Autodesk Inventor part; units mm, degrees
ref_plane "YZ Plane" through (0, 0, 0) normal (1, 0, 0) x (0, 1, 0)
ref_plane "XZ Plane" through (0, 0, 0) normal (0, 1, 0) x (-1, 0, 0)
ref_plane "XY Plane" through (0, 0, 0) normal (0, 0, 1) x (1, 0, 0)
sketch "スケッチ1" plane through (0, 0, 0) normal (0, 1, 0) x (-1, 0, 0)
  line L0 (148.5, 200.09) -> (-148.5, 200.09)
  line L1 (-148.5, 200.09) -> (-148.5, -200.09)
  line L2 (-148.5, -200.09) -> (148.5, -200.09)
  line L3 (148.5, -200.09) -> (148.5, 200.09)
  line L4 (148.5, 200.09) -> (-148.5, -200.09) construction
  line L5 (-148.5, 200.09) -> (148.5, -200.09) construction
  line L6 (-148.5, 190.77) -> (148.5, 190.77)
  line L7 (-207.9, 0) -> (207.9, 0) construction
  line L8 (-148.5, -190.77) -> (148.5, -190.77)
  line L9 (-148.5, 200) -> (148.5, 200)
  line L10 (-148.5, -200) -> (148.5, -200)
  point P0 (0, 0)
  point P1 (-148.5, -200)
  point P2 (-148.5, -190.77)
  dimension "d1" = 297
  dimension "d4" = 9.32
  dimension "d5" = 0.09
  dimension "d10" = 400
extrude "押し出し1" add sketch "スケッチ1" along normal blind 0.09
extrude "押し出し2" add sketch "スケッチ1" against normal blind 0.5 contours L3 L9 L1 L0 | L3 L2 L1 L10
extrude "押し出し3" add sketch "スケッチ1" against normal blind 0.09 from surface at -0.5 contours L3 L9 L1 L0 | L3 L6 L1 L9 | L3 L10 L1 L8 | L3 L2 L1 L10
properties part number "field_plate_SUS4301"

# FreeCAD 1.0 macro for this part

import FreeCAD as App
import Part
import Sketcher
Q = App.Units.Quantity

doc = App.newDocument("Part")
params = doc.addObject("Spreadsheet::Sheet", "Params")
for row, (alias, value) in enumerate([
    ("sketch1_width", "297 mm"),
    ("sketch1_height", "400.18 mm"),
    ("pad1_length", "0.09 mm"),
    ("sketch2_width", "297 mm"),
    ("sketch2_height", "0.09 mm"),
    ("pad2_length", "0.5 mm"),
    ("sketch3_width", "297 mm"),
    ("sketch3_height", "9.32 mm"),
    ("pad3_length", "0.09 mm"),
], start=1):
    params.set(f"A{row}", alias)
    params.set(f"B{row}", "=" + value)
    params.setAlias(f"B{row}", alias)

body = doc.addObject("PartDesign::Body", "Body")

# Sketch on XZ plane
sketch1 = body.newObject("Sketcher::SketchObject", "Sketch")
sketch1.AttachmentSupport = (doc.getObject("XZ_Plane"), [""])
sketch1.MapMode = "FlatFace"
sketch1.addGeometry(Part.LineSegment(App.Vector(-148, 200, 0), App.Vector(148, 200, 0)), False)
sketch1.addGeometry(Part.LineSegment(App.Vector(148, 200, 0), App.Vector(148, -200, 0)), False)
sketch1.addGeometry(Part.LineSegment(App.Vector(148, -200, 0), App.Vector(-148, -200, 0)), False)
sketch1.addGeometry(Part.LineSegment(App.Vector(-148, -200, 0), App.Vector(-148, 200, 0)), False)
sketch1.addConstraint(Sketcher.Constraint("Coincident", 0, 2, 1, 1))
sketch1.addConstraint(Sketcher.Constraint("Coincident", 1, 2, 2, 1))
sketch1.addConstraint(Sketcher.Constraint("Coincident", 2, 2, 3, 1))
sketch1.addConstraint(Sketcher.Constraint("Coincident", 3, 2, 0, 1))
sketch1.addConstraint(Sketcher.Constraint("Horizontal", 0))
sketch1.addConstraint(Sketcher.Constraint("Vertical", 1))
sketch1.addConstraint(Sketcher.Constraint("Horizontal", 2))
sketch1.addConstraint(Sketcher.Constraint("Vertical", 3))
sketch1.addConstraint(Sketcher.Constraint("Symmetric", 0, 2, 2, 2, -1, 1))
sketch1.addConstraint(Sketcher.Constraint("DistanceX", 0, 1, 0, 2, Q("297 mm")))
sketch1.addConstraint(Sketcher.Constraint("DistanceY", 1, 2, 1, 1, Q("400.18 mm")))
sketch1.setExpression("Constraints[9]", "Params.sketch1_width")
sketch1.setExpression("Constraints[10]", "Params.sketch1_height")
pad1 = body.newObject("PartDesign::Pad", "Pad")
pad1.Profile = sketch1
pad1.setExpression("Length", "Params.pad1_length")
pad1.Reversed = True

# Sketch on XZ plane
sketch2 = body.newObject("Sketcher::SketchObject", "Sketch001")
sketch2.AttachmentSupport = (doc.getObject("XZ_Plane"), [""])
sketch2.MapMode = "FlatFace"
sketch2.addGeometry(Part.LineSegment(App.Vector(-148.5, 200, 0), App.Vector(-148.5, 200.09, 0)), False)
sketch2.addGeometry(Part.LineSegment(App.Vector(-148.5, 200.09, 0), App.Vector(148.5, 200.09, 0)), False)
sketch2.addGeometry(Part.LineSegment(App.Vector(148.5, 200.09, 0), App.Vector(148.5, 200, 0)), False)
sketch2.addGeometry(Part.LineSegment(App.Vector(148.5, 200, 0), App.Vector(-148.5, 200, 0)), False)
sketch2.addGeometry(Part.LineSegment(App.Vector(-148.5, -200.09, 0), App.Vector(-148.5, -200, 0)), False)
sketch2.addGeometry(Part.LineSegment(App.Vector(-148.5, -200, 0), App.Vector(148.5, -200, 0)), False)
sketch2.addGeometry(Part.LineSegment(App.Vector(148.5, -200, 0), App.Vector(148.5, -200.09, 0)), False)
sketch2.addGeometry(Part.LineSegment(App.Vector(148.5, -200.09, 0), App.Vector(-148.5, -200.09, 0)), False)
sketch2.addConstraint(Sketcher.Constraint("Coincident", 0, 2, 1, 1))
sketch2.addConstraint(Sketcher.Constraint("Coincident", 1, 2, 2, 1))
sketch2.addConstraint(Sketcher.Constraint("Coincident", 2, 2, 3, 1))
sketch2.addConstraint(Sketcher.Constraint("Coincident", 3, 2, 0, 1))
sketch2.addConstraint(Sketcher.Constraint("Coincident", 4, 2, 5, 1))
sketch2.addConstraint(Sketcher.Constraint("Coincident", 5, 2, 6, 1))
sketch2.addConstraint(Sketcher.Constraint("Coincident", 6, 2, 7, 1))
sketch2.addConstraint(Sketcher.Constraint("Coincident", 7, 2, 4, 1))
sketch2.addConstraint(Sketcher.Constraint("Vertical", 0))
sketch2.addConstraint(Sketcher.Constraint("Horizontal", 1))
sketch2.addConstraint(Sketcher.Constraint("Vertical", 2))
sketch2.addConstraint(Sketcher.Constraint("Horizontal", 3))
sketch2.addConstraint(Sketcher.Constraint("Vertical", 4))
sketch2.addConstraint(Sketcher.Constraint("Horizontal", 5))
sketch2.addConstraint(Sketcher.Constraint("Vertical", 6))
sketch2.addConstraint(Sketcher.Constraint("Horizontal", 7))
sketch2.addConstraint(Sketcher.Constraint("Symmetric", 2, 2, 4, 2, -1, 1))
sketch2.addConstraint(Sketcher.Constraint("Symmetric", 0, 2, 6, 2, -1, 1))
sketch2.addConstraint(Sketcher.Constraint("Vertical", 3, 2, 4, 2))
sketch2.addConstraint(Sketcher.Constraint("DistanceX", 1, 1, 1, 2, Q("297 mm")))
sketch2.addConstraint(Sketcher.Constraint("DistanceY", 4, 2, 3, 2, Q("400 mm")))
sketch2.addConstraint(Sketcher.Constraint("DistanceY", 0, 1, 0, 2, Q("0.09 mm")))
sketch2.setExpression("Constraints[19]", "Params.sketch2_width")
sketch2.setExpression("Constraints[21]", "Params.sketch2_height")
pad2 = body.newObject("PartDesign::Pad", "Pad001")
pad2.Profile = sketch2
pad2.setExpression("Length", "Params.pad2_length")

# Sketch on XZ plane
sketch3 = body.newObject("Sketcher::SketchObject", "Sketch002")
sketch3.AttachmentSupport = (doc.getObject("XZ_Plane"), [""])
sketch3.MapMode = "FlatFace"
sketch3.AttachmentOffset = App.Placement(App.Vector(0, 0, 0.5), App.Rotation())
sketch3.addGeometry(Part.LineSegment(App.Vector(-148, 200, 0), App.Vector(148, 200, 0)), False)
sketch3.addGeometry(Part.LineSegment(App.Vector(148, 200, 0), App.Vector(148, 191, 0)), False)
sketch3.addGeometry(Part.LineSegment(App.Vector(148, 191, 0), App.Vector(-148, 191, 0)), False)
sketch3.addGeometry(Part.LineSegment(App.Vector(-148, 191, 0), App.Vector(-148, 200, 0)), False)
sketch3.addGeometry(Part.LineSegment(App.Vector(-148, -191, 0), App.Vector(148, -191, 0)), False)
sketch3.addGeometry(Part.LineSegment(App.Vector(148, -191, 0), App.Vector(148, -200, 0)), False)
sketch3.addGeometry(Part.LineSegment(App.Vector(148, -200, 0), App.Vector(-148, -200, 0)), False)
sketch3.addGeometry(Part.LineSegment(App.Vector(-148, -200, 0), App.Vector(-148, -191, 0)), False)
sketch3.addConstraint(Sketcher.Constraint("Coincident", 0, 2, 1, 1))
sketch3.addConstraint(Sketcher.Constraint("Coincident", 1, 2, 2, 1))
sketch3.addConstraint(Sketcher.Constraint("Coincident", 2, 2, 3, 1))
sketch3.addConstraint(Sketcher.Constraint("Coincident", 3, 2, 0, 1))
sketch3.addConstraint(Sketcher.Constraint("Coincident", 4, 2, 5, 1))
sketch3.addConstraint(Sketcher.Constraint("Coincident", 5, 2, 6, 1))
sketch3.addConstraint(Sketcher.Constraint("Coincident", 6, 2, 7, 1))
sketch3.addConstraint(Sketcher.Constraint("Coincident", 7, 2, 4, 1))
sketch3.addConstraint(Sketcher.Constraint("Horizontal", 0))
sketch3.addConstraint(Sketcher.Constraint("Vertical", 1))
sketch3.addConstraint(Sketcher.Constraint("Horizontal", 2))
sketch3.addConstraint(Sketcher.Constraint("Vertical", 3))
sketch3.addConstraint(Sketcher.Constraint("Horizontal", 4))
sketch3.addConstraint(Sketcher.Constraint("Vertical", 5))
sketch3.addConstraint(Sketcher.Constraint("Horizontal", 6))
sketch3.addConstraint(Sketcher.Constraint("Vertical", 7))
sketch3.addConstraint(Sketcher.Constraint("Symmetric", 2, 2, 4, 2, -1, 1))
sketch3.addConstraint(Sketcher.Constraint("Symmetric", 0, 2, 6, 2, -1, 1))
sketch3.addConstraint(Sketcher.Constraint("Vertical", 1, 2, 4, 2))
sketch3.addConstraint(Sketcher.Constraint("DistanceX", 0, 1, 0, 2, Q("297 mm")))
sketch3.addConstraint(Sketcher.Constraint("DistanceY", 1, 2, 1, 1, Q("9.32 mm")))
sketch3.addConstraint(Sketcher.Constraint("DistanceY", -1, 1, 0, 2, Q("200.09 mm")))
sketch3.setExpression("Constraints[19]", "Params.sketch3_width")
sketch3.setExpression("Constraints[20]", "Params.sketch3_height")
pad3 = body.newObject("PartDesign::Pad", "Pad002")
pad3.Profile = sketch3
pad3.setExpression("Length", "Params.pad3_length")

doc.recompute()
